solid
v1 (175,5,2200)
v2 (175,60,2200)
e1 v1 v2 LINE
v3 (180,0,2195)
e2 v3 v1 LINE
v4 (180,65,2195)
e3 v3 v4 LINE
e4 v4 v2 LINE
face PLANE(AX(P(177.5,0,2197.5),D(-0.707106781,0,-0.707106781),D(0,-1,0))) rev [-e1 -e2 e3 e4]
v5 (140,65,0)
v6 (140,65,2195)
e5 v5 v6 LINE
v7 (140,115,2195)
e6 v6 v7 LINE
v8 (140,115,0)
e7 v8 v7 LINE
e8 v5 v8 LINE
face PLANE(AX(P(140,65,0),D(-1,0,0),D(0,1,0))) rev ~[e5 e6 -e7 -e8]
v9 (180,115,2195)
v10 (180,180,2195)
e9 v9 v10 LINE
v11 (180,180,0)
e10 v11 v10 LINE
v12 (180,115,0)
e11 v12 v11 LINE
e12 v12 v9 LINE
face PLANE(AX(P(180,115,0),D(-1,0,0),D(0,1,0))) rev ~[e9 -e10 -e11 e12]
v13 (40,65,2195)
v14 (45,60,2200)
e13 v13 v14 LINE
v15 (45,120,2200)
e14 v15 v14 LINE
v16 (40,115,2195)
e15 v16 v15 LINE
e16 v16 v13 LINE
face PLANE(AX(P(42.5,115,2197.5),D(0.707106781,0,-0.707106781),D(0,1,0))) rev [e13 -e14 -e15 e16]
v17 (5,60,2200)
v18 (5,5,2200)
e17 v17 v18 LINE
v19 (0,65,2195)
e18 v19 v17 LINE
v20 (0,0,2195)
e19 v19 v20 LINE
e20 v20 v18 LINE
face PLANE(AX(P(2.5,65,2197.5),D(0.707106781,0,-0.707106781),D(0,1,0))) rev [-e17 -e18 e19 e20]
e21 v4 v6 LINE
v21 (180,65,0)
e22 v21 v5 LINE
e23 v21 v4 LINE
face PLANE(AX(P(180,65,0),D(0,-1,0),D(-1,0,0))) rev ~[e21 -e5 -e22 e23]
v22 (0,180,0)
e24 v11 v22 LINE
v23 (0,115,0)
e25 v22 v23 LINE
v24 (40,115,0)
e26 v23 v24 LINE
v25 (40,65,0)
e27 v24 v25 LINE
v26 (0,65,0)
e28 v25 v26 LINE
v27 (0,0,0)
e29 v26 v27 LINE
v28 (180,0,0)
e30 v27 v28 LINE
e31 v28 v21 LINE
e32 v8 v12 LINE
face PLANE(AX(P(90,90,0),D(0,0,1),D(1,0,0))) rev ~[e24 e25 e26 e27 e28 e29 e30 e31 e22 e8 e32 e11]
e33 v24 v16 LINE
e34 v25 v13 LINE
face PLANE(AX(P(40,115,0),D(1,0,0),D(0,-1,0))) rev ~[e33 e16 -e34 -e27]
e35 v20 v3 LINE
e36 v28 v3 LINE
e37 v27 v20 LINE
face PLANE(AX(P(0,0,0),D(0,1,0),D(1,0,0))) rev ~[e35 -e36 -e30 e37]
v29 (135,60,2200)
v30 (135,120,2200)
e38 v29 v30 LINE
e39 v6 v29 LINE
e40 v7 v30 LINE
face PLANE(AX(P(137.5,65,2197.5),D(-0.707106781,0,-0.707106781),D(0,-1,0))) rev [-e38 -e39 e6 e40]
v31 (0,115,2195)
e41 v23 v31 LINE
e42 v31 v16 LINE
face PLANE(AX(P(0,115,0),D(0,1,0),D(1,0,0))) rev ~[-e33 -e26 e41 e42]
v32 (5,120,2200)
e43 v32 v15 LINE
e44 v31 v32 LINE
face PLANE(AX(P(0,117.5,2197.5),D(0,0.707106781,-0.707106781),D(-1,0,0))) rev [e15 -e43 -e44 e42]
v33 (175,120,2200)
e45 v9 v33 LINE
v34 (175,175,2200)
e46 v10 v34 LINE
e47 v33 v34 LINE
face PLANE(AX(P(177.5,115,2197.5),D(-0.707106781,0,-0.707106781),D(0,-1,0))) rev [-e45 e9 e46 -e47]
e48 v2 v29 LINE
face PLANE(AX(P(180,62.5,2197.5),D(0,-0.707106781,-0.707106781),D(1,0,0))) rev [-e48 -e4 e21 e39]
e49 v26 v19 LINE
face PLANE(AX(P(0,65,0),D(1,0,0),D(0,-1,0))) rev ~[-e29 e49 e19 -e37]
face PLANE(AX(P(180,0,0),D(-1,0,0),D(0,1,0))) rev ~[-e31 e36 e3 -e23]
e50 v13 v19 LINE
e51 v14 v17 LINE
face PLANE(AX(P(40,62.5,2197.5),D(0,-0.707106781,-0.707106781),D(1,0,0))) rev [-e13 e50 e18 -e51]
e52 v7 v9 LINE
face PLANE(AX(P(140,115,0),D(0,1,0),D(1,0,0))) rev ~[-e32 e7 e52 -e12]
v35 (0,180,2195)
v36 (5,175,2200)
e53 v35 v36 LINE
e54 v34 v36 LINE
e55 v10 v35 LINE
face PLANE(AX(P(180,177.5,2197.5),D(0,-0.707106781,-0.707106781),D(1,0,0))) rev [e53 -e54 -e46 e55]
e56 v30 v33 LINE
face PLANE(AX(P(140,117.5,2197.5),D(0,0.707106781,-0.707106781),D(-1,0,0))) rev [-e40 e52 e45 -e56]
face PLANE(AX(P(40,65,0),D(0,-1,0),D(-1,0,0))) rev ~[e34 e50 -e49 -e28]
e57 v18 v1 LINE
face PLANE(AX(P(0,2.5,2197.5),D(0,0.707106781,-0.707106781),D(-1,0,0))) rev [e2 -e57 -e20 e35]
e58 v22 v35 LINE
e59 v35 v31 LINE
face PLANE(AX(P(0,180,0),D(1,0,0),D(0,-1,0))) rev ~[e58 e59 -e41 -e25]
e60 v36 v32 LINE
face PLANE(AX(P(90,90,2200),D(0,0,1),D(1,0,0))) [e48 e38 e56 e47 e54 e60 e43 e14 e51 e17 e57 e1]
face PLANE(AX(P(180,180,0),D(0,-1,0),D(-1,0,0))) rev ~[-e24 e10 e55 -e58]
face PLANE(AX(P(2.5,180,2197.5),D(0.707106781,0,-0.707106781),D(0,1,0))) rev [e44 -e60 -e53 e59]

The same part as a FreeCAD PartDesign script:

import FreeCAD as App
import Part
import Sketcher
Q = App.Units.Quantity


def edges_at(feature, points):
    """Names of the edges that pass closest to the given points."""
    edges = feature.Shape.Edges
    near = lambda p: min(range(len(edges)), key=lambda i: edges[i].distToShape(Part.Vertex(*p))[0])
    return sorted({f"Edge{near(p) + 1}" for p in points})

doc = App.newDocument("Part")
body = doc.addObject("PartDesign::Body", "Body")

sketch1 = body.newObject("Sketcher::SketchObject", "Sketch")
sketch1.AttachmentSupport = (doc.getObject("XY_Plane"), [""])
sketch1.MapMode = "FlatFace"
sketch1.addGeometry(Part.LineSegment(App.Vector(0, 65, 0), App.Vector(0, 0, 0)), False)
sketch1.addGeometry(Part.LineSegment(App.Vector(0, 0, 0), App.Vector(180, 0, 0)), False)
sketch1.addGeometry(Part.LineSegment(App.Vector(180, 0, 0), App.Vector(180, 65, 0)), False)
sketch1.addGeometry(Part.LineSegment(App.Vector(180, 65, 0), App.Vector(140, 65, 0)), False)
sketch1.addGeometry(Part.LineSegment(App.Vector(140, 65, 0), App.Vector(140, 115, 0)), False)
sketch1.addGeometry(Part.LineSegment(App.Vector(140, 115, 0), App.Vector(180, 115, 0)), False)
sketch1.addGeometry(Part.LineSegment(App.Vector(180, 115, 0), App.Vector(180, 180, 0)), False)
sketch1.addGeometry(Part.LineSegment(App.Vector(180, 180, 0), App.Vector(0, 180, 0)), False)
sketch1.addGeometry(Part.LineSegment(App.Vector(0, 180, 0), App.Vector(0, 115, 0)), False)
sketch1.addGeometry(Part.LineSegment(App.Vector(0, 115, 0), App.Vector(40, 115, 0)), False)
sketch1.addGeometry(Part.LineSegment(App.Vector(40, 115, 0), App.Vector(40, 65, 0)), False)
sketch1.addGeometry(Part.LineSegment(App.Vector(40, 65, 0), App.Vector(0, 65, 0)), False)
sketch1.addConstraint(Sketcher.Constraint("Coincident", 0, 2, 1, 1))
sketch1.addConstraint(Sketcher.Constraint("Coincident", 1, 2, 2, 1))
sketch1.addConstraint(Sketcher.Constraint("Coincident", 2, 2, 3, 1))
sketch1.addConstraint(Sketcher.Constraint("Coincident", 3, 2, 4, 1))
sketch1.addConstraint(Sketcher.Constraint("Coincident", 4, 2, 5, 1))
sketch1.addConstraint(Sketcher.Constraint("Coincident", 5, 2, 6, 1))
sketch1.addConstraint(Sketcher.Constraint("Coincident", 6, 2, 7, 1))
sketch1.addConstraint(Sketcher.Constraint("Coincident", 7, 2, 8, 1))
sketch1.addConstraint(Sketcher.Constraint("Coincident", 8, 2, 9, 1))
sketch1.addConstraint(Sketcher.Constraint("Coincident", 9, 2, 10, 1))
sketch1.addConstraint(Sketcher.Constraint("Coincident", 10, 2, 11, 1))
sketch1.addConstraint(Sketcher.Constraint("Coincident", 11, 2, 0, 1))
sketch1.addConstraint(Sketcher.Constraint("Vertical", 0))
sketch1.addConstraint(Sketcher.Constraint("Horizontal", 1))
sketch1.addConstraint(Sketcher.Constraint("Vertical", 2))
sketch1.addConstraint(Sketcher.Constraint("Horizontal", 3))
sketch1.addConstraint(Sketcher.Constraint("Vertical", 4))
sketch1.addConstraint(Sketcher.Constraint("Horizontal", 5))
sketch1.addConstraint(Sketcher.Constraint("Vertical", 6))
sketch1.addConstraint(Sketcher.Constraint("Horizontal", 7))
sketch1.addConstraint(Sketcher.Constraint("Vertical", 8))
sketch1.addConstraint(Sketcher.Constraint("Horizontal", 9))
sketch1.addConstraint(Sketcher.Constraint("Vertical", 10))
sketch1.addConstraint(Sketcher.Constraint("Horizontal", 11))
sketch1.addConstraint(Sketcher.Constraint("Coincident", 0, 2, -1, 1))
sketch1.addConstraint(Sketcher.Constraint("PointOnObject", 7, 2, -2))
sketch1.addConstraint(Sketcher.Constraint("Horizontal", 5, 2, 8, 2))
sketch1.addConstraint(Sketcher.Constraint("Horizontal", 3, 2, 10, 2))
sketch1.addConstraint(Sketcher.Constraint("Vertical", 2, 2, 5, 2))
sketch1.addConstraint(Sketcher.Constraint("Equal", 5, 9))
sketch1.addConstraint(Sketcher.Constraint("Equal", 2, 6))
sketch1.addConstraint(Sketcher.Constraint("DistanceX", 1, 1, 1, 2, Q("180 mm")))
sketch1.addConstraint(Sketcher.Constraint("DistanceX", 3, 2, 3, 1, Q("40 mm")))
sketch1.addConstraint(Sketcher.Constraint("DistanceY", 0, 2, 0, 1, Q("65 mm")))
sketch1.addConstraint(Sketcher.Constraint("DistanceY", 4, 1, 4, 2, Q("50 mm")))
pad1 = body.newObject("PartDesign::Pad", "Pad")
pad1.Profile = sketch1
pad1.Length = 2200
doc.recompute()

chamfer = body.newObject("PartDesign::Chamfer", "Chamfer")
chamfer.Base = (pad1, edges_at(pad1, [
    (90, 0, 2200),
    (0, 32.5, 2200),
    (20, 65, 2200),
    (40, 90, 2200),
    (20, 115, 2200),
    (0, 147.5, 2200),
    (90, 180, 2200),
    (180, 147.5, 2200),
    (160, 115, 2200),
    (180, 32.5, 2200),
    (160, 65, 2200),
    (140, 90, 2200),
]))
chamfer.Size = 5

doc.recompute()
